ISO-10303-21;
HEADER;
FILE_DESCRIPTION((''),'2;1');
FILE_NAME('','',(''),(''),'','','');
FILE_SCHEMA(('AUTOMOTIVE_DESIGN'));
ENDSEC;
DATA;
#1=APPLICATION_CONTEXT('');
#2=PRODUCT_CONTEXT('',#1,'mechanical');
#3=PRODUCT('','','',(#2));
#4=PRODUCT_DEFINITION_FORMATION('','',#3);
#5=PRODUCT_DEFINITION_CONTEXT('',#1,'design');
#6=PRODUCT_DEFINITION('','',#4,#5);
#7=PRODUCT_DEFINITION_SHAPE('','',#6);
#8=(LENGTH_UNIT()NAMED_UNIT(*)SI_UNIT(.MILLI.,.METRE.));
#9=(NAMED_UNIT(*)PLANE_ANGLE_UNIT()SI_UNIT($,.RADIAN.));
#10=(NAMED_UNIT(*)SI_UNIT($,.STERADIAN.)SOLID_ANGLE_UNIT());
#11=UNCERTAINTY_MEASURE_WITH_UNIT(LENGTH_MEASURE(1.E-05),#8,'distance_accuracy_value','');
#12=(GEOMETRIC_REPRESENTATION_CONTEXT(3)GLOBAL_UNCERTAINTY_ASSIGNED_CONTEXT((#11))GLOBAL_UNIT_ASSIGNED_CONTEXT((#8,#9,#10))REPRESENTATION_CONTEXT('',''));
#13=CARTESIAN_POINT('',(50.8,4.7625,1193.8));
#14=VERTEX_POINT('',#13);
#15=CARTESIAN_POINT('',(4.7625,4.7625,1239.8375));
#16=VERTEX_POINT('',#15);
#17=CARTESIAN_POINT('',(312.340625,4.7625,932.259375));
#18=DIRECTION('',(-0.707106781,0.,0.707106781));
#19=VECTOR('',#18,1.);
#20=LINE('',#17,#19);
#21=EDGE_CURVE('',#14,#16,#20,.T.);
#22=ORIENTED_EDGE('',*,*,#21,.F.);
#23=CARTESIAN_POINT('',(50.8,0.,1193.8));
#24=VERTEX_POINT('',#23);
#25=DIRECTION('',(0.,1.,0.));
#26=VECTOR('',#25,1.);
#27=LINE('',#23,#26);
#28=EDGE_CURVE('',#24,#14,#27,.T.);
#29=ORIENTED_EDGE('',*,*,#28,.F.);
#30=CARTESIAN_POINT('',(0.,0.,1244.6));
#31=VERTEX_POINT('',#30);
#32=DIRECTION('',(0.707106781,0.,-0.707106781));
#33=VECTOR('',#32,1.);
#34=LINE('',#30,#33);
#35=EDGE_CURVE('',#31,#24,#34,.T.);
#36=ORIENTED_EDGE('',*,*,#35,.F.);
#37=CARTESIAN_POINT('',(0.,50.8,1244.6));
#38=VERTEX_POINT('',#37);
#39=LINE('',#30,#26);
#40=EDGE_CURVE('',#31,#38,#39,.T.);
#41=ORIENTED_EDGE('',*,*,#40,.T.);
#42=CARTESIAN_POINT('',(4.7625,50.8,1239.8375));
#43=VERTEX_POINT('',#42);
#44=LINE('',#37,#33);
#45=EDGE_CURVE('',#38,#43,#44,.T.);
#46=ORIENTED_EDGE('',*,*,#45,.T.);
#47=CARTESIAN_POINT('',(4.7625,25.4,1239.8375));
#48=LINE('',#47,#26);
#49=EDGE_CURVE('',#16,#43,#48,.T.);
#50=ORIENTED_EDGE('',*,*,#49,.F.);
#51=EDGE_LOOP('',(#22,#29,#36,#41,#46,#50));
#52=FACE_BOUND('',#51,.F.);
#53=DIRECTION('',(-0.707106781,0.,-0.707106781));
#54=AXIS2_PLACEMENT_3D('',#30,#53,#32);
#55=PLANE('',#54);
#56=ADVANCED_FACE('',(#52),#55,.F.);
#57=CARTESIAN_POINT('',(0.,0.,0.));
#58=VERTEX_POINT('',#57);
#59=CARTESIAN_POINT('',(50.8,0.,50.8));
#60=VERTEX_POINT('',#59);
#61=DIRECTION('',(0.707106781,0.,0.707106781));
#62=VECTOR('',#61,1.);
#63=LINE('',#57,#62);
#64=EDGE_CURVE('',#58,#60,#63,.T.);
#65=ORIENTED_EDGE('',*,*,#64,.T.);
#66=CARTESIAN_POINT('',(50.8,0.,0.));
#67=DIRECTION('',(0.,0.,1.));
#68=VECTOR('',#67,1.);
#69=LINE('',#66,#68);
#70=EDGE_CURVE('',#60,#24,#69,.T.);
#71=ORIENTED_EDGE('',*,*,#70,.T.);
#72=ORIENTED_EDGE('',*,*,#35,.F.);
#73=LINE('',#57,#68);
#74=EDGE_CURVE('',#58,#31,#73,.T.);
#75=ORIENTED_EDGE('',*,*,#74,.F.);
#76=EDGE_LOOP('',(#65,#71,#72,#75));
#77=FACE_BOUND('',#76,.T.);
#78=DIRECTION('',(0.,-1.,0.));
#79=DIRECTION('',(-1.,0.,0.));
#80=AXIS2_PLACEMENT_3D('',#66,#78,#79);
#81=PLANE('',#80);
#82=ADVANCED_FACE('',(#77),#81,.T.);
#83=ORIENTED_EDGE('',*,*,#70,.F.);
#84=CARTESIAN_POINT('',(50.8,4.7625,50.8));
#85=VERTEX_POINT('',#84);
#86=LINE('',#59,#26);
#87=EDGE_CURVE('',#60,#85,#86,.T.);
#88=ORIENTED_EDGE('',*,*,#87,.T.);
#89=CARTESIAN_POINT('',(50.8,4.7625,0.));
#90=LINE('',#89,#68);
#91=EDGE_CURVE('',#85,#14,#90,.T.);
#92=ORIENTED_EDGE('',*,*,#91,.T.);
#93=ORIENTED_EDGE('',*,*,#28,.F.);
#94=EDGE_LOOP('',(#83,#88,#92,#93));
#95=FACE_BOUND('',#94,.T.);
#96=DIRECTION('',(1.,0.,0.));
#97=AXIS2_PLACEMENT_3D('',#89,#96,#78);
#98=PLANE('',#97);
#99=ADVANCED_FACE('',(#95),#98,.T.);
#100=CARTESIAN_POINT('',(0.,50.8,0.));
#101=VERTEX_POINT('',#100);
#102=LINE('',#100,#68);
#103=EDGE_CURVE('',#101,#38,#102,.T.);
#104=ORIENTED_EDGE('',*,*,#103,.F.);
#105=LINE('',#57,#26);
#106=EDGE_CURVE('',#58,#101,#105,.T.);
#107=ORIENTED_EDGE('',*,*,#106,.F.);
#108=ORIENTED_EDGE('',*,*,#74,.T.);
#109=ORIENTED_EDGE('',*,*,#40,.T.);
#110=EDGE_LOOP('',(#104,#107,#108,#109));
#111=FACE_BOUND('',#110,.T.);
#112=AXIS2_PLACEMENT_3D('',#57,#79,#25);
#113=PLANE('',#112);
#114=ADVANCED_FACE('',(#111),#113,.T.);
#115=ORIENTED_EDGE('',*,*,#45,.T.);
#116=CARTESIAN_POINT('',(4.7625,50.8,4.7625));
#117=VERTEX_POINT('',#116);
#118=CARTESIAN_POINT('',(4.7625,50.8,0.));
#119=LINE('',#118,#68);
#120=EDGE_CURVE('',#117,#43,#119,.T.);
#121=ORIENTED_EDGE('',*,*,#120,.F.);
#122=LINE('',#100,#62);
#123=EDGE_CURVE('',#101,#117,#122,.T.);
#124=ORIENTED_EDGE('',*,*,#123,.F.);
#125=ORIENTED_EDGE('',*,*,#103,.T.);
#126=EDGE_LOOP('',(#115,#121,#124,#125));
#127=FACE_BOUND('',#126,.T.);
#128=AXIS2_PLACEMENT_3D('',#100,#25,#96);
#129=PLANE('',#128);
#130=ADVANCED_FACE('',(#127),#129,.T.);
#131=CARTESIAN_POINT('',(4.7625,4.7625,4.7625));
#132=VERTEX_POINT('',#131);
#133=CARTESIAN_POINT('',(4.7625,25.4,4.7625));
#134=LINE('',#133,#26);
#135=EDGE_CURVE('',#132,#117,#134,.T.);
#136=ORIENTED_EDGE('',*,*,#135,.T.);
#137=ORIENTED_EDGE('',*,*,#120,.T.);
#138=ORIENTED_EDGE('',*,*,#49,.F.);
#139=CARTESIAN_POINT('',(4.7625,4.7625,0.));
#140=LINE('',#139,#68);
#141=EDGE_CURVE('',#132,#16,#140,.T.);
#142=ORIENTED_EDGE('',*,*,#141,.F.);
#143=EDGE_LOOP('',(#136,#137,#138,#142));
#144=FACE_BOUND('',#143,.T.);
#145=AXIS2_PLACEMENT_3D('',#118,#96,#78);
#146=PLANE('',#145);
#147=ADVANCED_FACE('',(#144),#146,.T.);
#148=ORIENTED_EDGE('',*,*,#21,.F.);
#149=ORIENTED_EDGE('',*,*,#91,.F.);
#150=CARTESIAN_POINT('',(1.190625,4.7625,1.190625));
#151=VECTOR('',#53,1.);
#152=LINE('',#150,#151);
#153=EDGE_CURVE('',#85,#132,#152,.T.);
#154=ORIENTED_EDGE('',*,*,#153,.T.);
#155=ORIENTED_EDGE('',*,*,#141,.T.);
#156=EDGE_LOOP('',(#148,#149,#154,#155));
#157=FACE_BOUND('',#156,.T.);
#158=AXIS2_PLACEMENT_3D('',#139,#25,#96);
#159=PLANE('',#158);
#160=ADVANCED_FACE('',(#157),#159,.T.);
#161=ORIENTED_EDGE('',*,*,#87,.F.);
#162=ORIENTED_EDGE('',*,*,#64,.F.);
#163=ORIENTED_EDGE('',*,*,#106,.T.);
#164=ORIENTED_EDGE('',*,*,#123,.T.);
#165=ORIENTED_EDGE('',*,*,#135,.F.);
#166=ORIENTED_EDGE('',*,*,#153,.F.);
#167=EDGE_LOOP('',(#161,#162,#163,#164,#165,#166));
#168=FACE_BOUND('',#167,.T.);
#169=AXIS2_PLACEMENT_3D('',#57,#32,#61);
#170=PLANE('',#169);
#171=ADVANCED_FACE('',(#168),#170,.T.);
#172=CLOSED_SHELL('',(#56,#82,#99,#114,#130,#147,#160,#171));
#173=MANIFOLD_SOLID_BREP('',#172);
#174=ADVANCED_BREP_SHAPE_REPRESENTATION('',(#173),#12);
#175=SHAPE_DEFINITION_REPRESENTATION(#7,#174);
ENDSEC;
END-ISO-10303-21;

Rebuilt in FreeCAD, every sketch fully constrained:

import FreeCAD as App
import Part
import Sketcher
from FreeCAD import Vector
Q = App.Units.Quantity

doc = App.newDocument("Part")
body = doc.addObject("PartDesign::Body", "Body")

# Sketch on XY plane
sketch1 = body.newObject("Sketcher::SketchObject", "Sketch")
sketch1.AttachmentSupport = (doc.getObject("XY_Plane"), [""])
sketch1.MapMode = "FlatFace"
sketch1.addGeometry([
    Part.LineSegment(Vector(0, 50.8, 0), Vector(0, 0, 0)),  # 0
    Part.LineSegment(Vector(0, 0, 0), Vector(50.8, 0, 0)),  # 1
    Part.LineSegment(Vector(50.8, 0, 0), Vector(50.8, 4.8, 0)),  # 2
    Part.LineSegment(Vector(50.8, 4.8, 0), Vector(4.8, 4.8, 0)),  # 3
    Part.LineSegment(Vector(4.8, 4.8, 0), Vector(4.8, 50.8, 0)),  # 4
    Part.LineSegment(Vector(4.8, 50.8, 0), Vector(0, 50.8, 0)),  # 5
], False)
sketch1.addConstraint([
    Sketcher.Constraint("Coincident", 0, 2, 1, 1),
    Sketcher.Constraint("Coincident", 1, 2, 2, 1),
    Sketcher.Constraint("Coincident", 2, 2, 3, 1),
    Sketcher.Constraint("Coincident", 3, 2, 4, 1),
    Sketcher.Constraint("Coincident", 4, 2, 5, 1),
    Sketcher.Constraint("Coincident", 5, 2, 0, 1),
    Sketcher.Constraint("Vertical", 0),
    Sketcher.Constraint("Horizontal", 1),
    Sketcher.Constraint("Vertical", 2),
    Sketcher.Constraint("Horizontal", 3),
    Sketcher.Constraint("Vertical", 4),
    Sketcher.Constraint("Horizontal", 5),
    Sketcher.Constraint("Coincident", 0, 2, -1, 1),
    Sketcher.Constraint("Equal", 1, 0),
    Sketcher.Constraint("Equal", 5, 2),
    Sketcher.Constraint("DistanceX", 1, 1, 1, 2, Q("2 in")),
    Sketcher.Constraint("DistanceX", 5, 2, 5, 1, Q("0.1875 in")),
])
pad1 = body.newObject("PartDesign::Pad", "Pad")
pad1.Profile = sketch1
pad1.Length = Q("49 in")

# Sketch on XZ plane
sketch2 = body.newObject("Sketcher::SketchObject", "Sketch001")
sketch2.AttachmentSupport = (doc.getObject("XZ_Plane"), [""])
sketch2.MapMode = "FlatFace"
sketch2.addGeometry([
    Part.LineSegment(Vector(51, 1194, 0), Vector(51, 1245, 0)),
    Part.LineSegment(Vector(51, 1245, 0), Vector(0, 1245, 0)),
    Part.LineSegment(Vector(0, 1245, 0), Vector(51, 1194, 0)),
], False)
sketch2.addConstraint([
    Sketcher.Constraint("Coincident", 0, 2, 1, 1),
    Sketcher.Constraint("Coincident", 1, 2, 2, 1),
    Sketcher.Constraint("Coincident", 2, 2, 0, 1),
    Sketcher.Constraint("Vertical", 0),
    Sketcher.Constraint("Horizontal", 1),
    Sketcher.Constraint("PointOnObject", 1, 2, -2),
    Sketcher.Constraint("Equal", 1, 0),
    Sketcher.Constraint("DistanceX", 1, 2, 1, 1, Q("2 in")),
    Sketcher.Constraint("DistanceY", -1, 1, 0, 2, Q("49 in")),
])
pocket1 = body.newObject("PartDesign::Pocket", "Pocket")
pocket1.Profile = sketch2
pocket1.Length = Q("2 in")

# Sketch on XZ plane
sketch3 = body.newObject("Sketcher::SketchObject", "Sketch002")
sketch3.AttachmentSupport = (doc.getObject("XZ_Plane"), [""])
sketch3.MapMode = "FlatFace"
sketch3.addGeometry([
    Part.LineSegment(Vector(0, 0, 0), Vector(51, 0, 0)),
    Part.LineSegment(Vector(51, 0, 0), Vector(51, 51, 0)),
    Part.LineSegment(Vector(51, 51, 0), Vector(0, 0, 0)),
], False)
sketch3.addConstraint([
    Sketcher.Constraint("Coincident", 0, 2, 1, 1),
    Sketcher.Constraint("Coincident", 1, 2, 2, 1),
    Sketcher.Constraint("Coincident", 2, 2, 0, 1),
    Sketcher.Constraint("Horizontal", 0),
    Sketcher.Constraint("Vertical", 1),
    Sketcher.Constraint("Coincident", 2, 2, -1, 1),
    Sketcher.Constraint("Equal", 0, 1),
    Sketcher.Constraint("DistanceX", 0, 1, 0, 2, Q("2 in")),
])
pocket2 = body.newObject("PartDesign::Pocket", "Pocket001")
pocket2.Profile = sketch3
pocket2.Length = Q("2 in")

doc.recompute()
